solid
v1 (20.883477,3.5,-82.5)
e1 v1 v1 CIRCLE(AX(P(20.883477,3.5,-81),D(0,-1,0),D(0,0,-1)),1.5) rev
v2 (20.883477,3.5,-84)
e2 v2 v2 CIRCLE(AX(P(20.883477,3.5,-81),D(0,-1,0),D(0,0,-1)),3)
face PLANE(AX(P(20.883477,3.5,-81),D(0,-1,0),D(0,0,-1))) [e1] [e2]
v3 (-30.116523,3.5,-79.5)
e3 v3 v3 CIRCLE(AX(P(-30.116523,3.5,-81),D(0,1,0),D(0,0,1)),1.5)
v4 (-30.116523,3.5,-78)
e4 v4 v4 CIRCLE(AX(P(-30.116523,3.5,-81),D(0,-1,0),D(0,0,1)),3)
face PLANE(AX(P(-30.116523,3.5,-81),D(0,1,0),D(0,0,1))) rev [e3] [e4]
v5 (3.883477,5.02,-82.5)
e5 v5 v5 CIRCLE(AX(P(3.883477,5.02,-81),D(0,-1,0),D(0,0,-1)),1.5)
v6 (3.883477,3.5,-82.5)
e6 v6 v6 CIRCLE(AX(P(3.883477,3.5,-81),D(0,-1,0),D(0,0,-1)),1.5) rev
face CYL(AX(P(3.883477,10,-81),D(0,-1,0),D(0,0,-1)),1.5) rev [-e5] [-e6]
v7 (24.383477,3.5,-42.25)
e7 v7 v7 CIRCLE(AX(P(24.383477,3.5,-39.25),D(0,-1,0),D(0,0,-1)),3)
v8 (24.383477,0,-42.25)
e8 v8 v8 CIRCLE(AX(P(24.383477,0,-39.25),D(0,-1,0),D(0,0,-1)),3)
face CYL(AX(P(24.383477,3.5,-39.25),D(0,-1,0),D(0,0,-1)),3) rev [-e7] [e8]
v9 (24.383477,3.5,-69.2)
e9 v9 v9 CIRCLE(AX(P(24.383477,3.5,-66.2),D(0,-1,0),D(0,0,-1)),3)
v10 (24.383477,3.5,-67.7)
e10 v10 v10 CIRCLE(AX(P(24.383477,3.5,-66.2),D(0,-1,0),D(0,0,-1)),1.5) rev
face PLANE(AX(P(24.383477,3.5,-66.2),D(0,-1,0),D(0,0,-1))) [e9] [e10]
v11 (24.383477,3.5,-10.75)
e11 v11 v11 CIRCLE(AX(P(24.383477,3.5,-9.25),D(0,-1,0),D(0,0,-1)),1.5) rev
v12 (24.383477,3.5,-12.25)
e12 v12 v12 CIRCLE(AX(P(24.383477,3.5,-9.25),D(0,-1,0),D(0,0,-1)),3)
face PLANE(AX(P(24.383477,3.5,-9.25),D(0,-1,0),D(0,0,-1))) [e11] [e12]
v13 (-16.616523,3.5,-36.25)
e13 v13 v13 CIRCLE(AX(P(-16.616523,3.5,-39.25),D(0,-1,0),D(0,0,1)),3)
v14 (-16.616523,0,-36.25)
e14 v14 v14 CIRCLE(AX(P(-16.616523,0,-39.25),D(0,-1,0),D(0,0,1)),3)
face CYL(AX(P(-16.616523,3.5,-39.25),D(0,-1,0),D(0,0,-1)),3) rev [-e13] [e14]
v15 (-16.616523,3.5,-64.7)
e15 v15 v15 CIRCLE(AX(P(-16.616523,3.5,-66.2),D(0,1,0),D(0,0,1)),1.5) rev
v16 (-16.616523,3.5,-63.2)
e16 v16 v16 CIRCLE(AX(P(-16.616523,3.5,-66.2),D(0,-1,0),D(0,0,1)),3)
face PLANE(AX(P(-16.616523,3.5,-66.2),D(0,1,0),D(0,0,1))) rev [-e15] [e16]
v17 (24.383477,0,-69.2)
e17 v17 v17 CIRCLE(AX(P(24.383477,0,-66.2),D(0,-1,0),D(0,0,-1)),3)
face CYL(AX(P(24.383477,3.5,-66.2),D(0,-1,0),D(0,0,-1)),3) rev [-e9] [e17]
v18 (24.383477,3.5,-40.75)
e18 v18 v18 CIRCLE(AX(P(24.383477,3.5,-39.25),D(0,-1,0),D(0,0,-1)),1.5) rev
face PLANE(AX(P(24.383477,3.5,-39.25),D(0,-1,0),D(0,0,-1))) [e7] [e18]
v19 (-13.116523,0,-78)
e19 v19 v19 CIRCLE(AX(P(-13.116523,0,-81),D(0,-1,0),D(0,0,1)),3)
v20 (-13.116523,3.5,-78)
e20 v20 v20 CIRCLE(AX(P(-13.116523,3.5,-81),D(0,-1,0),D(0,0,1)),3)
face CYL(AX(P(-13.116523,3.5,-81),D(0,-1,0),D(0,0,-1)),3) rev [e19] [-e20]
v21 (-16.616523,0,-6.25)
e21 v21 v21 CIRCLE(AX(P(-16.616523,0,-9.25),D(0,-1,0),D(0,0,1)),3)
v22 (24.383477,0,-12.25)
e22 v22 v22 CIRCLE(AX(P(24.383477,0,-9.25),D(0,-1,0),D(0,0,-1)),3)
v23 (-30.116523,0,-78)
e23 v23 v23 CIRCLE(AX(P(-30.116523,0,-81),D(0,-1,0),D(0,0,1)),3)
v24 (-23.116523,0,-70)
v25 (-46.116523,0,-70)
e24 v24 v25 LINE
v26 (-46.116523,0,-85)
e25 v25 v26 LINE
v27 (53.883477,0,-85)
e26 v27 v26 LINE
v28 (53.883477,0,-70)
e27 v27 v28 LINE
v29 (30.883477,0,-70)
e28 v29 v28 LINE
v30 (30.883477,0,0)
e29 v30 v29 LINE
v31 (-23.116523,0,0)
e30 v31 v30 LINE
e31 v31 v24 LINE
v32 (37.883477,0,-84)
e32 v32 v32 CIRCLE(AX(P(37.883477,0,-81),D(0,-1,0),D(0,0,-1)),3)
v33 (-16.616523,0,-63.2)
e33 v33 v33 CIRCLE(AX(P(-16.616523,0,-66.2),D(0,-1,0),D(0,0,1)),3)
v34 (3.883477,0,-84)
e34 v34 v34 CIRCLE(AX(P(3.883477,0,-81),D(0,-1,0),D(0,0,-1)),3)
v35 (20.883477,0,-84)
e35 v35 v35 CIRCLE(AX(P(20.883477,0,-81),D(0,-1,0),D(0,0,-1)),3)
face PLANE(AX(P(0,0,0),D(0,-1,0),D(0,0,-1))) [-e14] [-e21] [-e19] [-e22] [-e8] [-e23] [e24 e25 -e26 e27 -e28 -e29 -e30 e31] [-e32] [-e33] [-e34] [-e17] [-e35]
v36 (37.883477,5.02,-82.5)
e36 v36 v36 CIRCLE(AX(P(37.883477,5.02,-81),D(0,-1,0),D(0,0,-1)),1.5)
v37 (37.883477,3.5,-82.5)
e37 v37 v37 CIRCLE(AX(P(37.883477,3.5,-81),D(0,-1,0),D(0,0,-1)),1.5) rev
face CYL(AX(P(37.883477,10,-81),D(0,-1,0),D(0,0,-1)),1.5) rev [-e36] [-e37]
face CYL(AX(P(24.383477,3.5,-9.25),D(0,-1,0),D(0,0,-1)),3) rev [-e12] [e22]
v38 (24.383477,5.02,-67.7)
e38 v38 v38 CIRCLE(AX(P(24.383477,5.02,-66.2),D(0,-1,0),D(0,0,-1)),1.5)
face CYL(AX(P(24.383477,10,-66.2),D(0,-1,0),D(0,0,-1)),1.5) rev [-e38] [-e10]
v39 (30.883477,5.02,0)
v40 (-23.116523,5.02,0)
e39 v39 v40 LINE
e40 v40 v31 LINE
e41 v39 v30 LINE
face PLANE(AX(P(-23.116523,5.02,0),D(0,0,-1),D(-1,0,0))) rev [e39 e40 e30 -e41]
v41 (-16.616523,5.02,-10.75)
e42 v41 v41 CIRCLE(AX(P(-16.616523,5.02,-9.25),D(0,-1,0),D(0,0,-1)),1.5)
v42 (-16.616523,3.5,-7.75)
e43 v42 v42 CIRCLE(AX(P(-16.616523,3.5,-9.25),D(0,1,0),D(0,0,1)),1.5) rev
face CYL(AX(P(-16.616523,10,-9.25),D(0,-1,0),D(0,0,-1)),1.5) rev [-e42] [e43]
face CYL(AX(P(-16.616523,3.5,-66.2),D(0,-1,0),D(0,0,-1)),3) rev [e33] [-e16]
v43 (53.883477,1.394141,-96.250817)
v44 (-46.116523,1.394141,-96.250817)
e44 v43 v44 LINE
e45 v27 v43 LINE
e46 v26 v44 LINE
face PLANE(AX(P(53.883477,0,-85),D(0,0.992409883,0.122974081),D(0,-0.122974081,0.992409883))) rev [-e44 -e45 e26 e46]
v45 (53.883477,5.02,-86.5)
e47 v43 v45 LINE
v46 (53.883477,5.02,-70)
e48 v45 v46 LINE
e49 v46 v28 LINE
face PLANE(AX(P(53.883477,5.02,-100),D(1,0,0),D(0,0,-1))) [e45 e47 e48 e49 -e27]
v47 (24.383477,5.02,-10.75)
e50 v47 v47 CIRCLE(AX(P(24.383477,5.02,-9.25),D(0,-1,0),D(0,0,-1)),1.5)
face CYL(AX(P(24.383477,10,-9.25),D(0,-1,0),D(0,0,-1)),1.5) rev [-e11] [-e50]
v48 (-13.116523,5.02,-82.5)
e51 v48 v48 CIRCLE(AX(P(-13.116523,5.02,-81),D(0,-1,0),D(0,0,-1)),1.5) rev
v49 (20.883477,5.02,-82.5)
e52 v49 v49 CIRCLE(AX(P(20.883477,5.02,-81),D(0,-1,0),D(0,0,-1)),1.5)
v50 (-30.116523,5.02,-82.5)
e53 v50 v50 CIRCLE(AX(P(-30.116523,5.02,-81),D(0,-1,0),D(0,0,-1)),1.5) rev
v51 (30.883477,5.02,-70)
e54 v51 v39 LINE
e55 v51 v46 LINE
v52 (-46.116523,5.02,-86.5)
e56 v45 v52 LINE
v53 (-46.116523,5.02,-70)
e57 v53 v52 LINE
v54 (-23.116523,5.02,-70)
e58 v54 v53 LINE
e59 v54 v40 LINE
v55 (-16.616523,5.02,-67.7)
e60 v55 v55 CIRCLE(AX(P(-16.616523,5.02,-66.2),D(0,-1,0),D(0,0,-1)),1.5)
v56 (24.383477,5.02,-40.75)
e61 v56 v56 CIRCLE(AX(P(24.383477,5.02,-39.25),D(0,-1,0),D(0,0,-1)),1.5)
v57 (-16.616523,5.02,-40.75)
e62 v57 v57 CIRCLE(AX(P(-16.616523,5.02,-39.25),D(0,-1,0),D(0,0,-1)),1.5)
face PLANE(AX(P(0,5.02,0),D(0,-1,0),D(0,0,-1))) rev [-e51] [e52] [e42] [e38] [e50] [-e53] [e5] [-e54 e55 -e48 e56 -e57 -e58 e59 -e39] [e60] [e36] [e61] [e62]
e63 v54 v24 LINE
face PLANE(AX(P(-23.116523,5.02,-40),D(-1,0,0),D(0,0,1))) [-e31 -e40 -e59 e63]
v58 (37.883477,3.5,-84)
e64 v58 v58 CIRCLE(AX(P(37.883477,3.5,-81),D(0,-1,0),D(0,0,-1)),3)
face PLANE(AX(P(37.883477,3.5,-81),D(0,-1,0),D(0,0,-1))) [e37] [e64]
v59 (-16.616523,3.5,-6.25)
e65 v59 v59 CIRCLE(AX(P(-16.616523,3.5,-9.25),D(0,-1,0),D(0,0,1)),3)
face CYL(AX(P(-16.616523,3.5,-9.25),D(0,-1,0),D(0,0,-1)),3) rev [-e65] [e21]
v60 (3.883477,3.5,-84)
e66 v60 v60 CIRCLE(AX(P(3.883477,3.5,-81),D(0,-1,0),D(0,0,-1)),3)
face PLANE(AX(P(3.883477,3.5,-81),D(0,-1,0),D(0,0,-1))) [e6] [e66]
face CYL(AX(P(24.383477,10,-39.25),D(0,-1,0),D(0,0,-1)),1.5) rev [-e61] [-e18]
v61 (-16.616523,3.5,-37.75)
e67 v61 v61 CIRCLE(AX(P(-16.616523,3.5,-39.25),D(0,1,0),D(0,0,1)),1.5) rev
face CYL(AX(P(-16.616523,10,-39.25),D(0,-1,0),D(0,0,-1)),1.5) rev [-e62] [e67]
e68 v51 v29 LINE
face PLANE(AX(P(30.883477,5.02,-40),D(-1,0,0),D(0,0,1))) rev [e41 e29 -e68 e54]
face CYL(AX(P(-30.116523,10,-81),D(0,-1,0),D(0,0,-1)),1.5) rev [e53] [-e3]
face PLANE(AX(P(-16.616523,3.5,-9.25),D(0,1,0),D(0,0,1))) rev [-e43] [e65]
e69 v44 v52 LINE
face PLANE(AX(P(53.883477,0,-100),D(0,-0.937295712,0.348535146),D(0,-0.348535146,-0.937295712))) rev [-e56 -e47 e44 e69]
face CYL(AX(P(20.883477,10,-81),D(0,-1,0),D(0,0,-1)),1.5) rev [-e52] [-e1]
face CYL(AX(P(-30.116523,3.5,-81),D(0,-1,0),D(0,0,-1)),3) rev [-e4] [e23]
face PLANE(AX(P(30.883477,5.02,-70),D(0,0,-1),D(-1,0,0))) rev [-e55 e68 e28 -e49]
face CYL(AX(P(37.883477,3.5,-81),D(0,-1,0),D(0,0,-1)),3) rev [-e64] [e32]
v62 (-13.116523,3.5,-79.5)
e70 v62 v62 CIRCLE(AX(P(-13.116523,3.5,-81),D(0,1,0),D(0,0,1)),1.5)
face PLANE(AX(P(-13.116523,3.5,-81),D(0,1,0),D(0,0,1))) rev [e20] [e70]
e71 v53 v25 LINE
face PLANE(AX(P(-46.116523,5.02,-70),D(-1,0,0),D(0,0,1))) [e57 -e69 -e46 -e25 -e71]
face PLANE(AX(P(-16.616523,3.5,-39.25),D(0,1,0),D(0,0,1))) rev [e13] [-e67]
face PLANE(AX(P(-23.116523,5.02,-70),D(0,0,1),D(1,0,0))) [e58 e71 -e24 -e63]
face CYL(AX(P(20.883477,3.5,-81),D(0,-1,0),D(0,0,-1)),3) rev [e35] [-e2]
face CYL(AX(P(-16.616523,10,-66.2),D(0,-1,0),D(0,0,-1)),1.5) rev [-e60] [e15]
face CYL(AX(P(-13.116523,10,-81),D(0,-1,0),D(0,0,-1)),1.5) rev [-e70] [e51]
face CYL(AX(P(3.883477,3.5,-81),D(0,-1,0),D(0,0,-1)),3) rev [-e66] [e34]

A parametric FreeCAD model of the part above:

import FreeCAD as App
import Part
import Sketcher
from FreeCAD import Vector
Q = App.Units.Quantity


def add_polygon(sketch, points):
    """Adds a closed chain of lines whose ends are joined by coincident constraints."""
    first, n = sketch.GeometryCount, len(points)
    for a, b in zip(points, points[1:] + points[:1]):
        sketch.addGeometry(Part.LineSegment(App.Vector(*a, 0), App.Vector(*b, 0)), False)
    for i in range(n):
        sketch.addConstraint(Sketcher.Constraint("Coincident", first + i, 2, first + (i + 1) % n, 1))

doc = App.newDocument("Part")
params = doc.addObject("Spreadsheet::Sheet", "Params")
for row, (alias, value) in enumerate([
    ("sketch1_width", "23 mm"),
    ("sketch1_width2", "54 mm"),
    ("sketch1_height", "30 mm"),
    ("sketch1_height2", "70 mm"),
    ("pad1_length", "5.02 mm"),
    ("sketch2_height", "13.5 mm"),
    ("sketch2_width", "5.02 mm"),
    ("pocket1_length", "100 mm"),
    ("sketch3_diameter", "3 mm"),
    ("pocket2_length", "10 mm"),
    ("sketch4_diameter", "6 mm"),
    ("pocket3_length", "3.5 mm"),
    ("sketch5_height", "15 mm"),
    ("sketch5_length", "4 mm"),
    ("pocket4_length", "100 mm"),
], start=1):
    params.set(f"A{row}", alias)
    params.set(f"B{row}", "=" + value)
    params.setAlias(f"B{row}", alias)

body = doc.addObject("PartDesign::Body", "Body")

# Sketch on XZ plane
sketch1 = body.newObject("Sketcher::SketchObject", "Sketch")
sketch1.AttachmentSupport = (doc.getObject("XZ_Plane"), [""])
sketch1.MapMode = "FlatFace"
add_polygon(sketch1, [(-46.116523, -100), (-46.116523, -70), (-23.116523, -70), (-23.116523, 0), (30.883477, 0), (30.883477, -70), (53.883477, -70), (53.883477, -100)])  # lines 0-7
sketch1.addConstraint(Sketcher.Constraint("Vertical", 0))
sketch1.addConstraint(Sketcher.Constraint("Horizontal", 1))
sketch1.addConstraint(Sketcher.Constraint("Vertical", 2))
sketch1.addConstraint(Sketcher.Constraint("Horizontal", 3))
sketch1.addConstraint(Sketcher.Constraint("Vertical", 4))
sketch1.addConstraint(Sketcher.Constraint("Horizontal", 5))
sketch1.addConstraint(Sketcher.Constraint("Vertical", 6))
sketch1.addConstraint(Sketcher.Constraint("Horizontal", 7))
sketch1.addConstraint(Sketcher.Constraint("PointOnObject", 2, 2, -1))
sketch1.addConstraint(Sketcher.Constraint("Horizontal", 1, 2, 4, 2))
sketch1.addConstraint(Sketcher.Constraint("Equal", 1, 5))
sketch1.addConstraint(Sketcher.Constraint("DistanceX", 1, 1, 1, 2, Q("23 mm")))
sketch1.addConstraint(Sketcher.Constraint("DistanceX", 3, 1, 3, 2, Q("54 mm")))
sketch1.addConstraint(Sketcher.Constraint("DistanceY", 0, 1, 0, 2, Q("30 mm")))
sketch1.addConstraint(Sketcher.Constraint("DistanceY", 2, 1, 2, 2, Q("70 mm")))
sketch1.addConstraint(Sketcher.Constraint("DistanceX", 0, 2, -1, 1, Q("46.116523 mm")))
sketch1.setExpression("Constraints[19]", "Params.sketch1_width")
sketch1.setExpression("Constraints[20]", "Params.sketch1_width2")
sketch1.setExpression("Constraints[21]", "Params.sketch1_height")
sketch1.setExpression("Constraints[22]", "Params.sketch1_height2")
pad1 = body.newObject("PartDesign::Pad", "Pad")
pad1.Profile = sketch1
pad1.setExpression("Length", "Params.pad1_length")
pad1.Reversed = True

# Sketch on YZ plane
sketch2 = body.newObject("Sketcher::SketchObject", "Sketch001")
sketch2.AttachmentSupport = (doc.getObject("YZ_Plane"), [""])
sketch2.MapMode = "FlatFace"
sketch2.AttachmentOffset = App.Placement(Vector(0, 0, -46.116523), App.Rotation())
add_polygon(sketch2, [(0, -100), (5.02, -86.5), (5.02, -100)])  # lines 0-2
sketch2.addConstraint(Sketcher.Constraint("Vertical", 1))
sketch2.addConstraint(Sketcher.Constraint("Horizontal", 2))
sketch2.addConstraint(Sketcher.Constraint("PointOnObject", 2, 2, -2))
sketch2.addConstraint(Sketcher.Constraint("DistanceY", 1, 2, 1, 1, Q("13.5 mm")))
sketch2.addConstraint(Sketcher.Constraint("DistanceY", 1, 2, -1, 1, Q("100 mm")))
sketch2.addConstraint(Sketcher.Constraint("DistanceX", 2, 2, 2, 1, Q("5.02 mm")))
sketch2.setExpression("Constraints[6]", "Params.sketch2_height")
sketch2.setExpression("Constraints[8]", "Params.sketch2_width")
pocket1 = body.newObject("PartDesign::Pocket", "Pocket")
pocket1.Profile = sketch2
pocket1.setExpression("Length", "Params.pocket1_length")
pocket1.Reversed = True

# Sketch on XZ plane
sketch3 = body.newObject("Sketcher::SketchObject", "Sketch002")
sketch3.AttachmentSupport = (doc.getObject("XZ_Plane"), [""])
sketch3.MapMode = "FlatFace"
sketch3.addGeometry(Part.Circle(Vector(3.883477, -81, 0), Vector(0, 0, 1), 1.5), False)
sketch3.addGeometry(Part.Circle(Vector(24.383477, -9.25, 0), Vector(0, 0, 1), 1.5), False)
sketch3.addGeometry(Part.Circle(Vector(-30.116523, -81, 0), Vector(0, 0, 1), 1.5), False)
sketch3.addGeometry(Part.Circle(Vector(-13.116523, -81, 0), Vector(0, 0, 1), 1.5), False)
sketch3.addGeometry(Part.Circle(Vector(24.383477, -66.2, 0), Vector(0, 0, 1), 1.5), False)
sketch3.addGeometry(Part.Circle(Vector(24.383477, -39.25, 0), Vector(0, 0, 1), 1.5), False)
sketch3.addGeometry(Part.Circle(Vector(-16.616523, -9.25, 0), Vector(0, 0, 1), 1.5), False)
sketch3.addGeometry(Part.Circle(Vector(-16.616523, -39.25, 0), Vector(0, 0, 1), 1.5), False)
sketch3.addGeometry(Part.Circle(Vector(-16.616523, -66.2, 0), Vector(0, 0, 1), 1.5), False)
sketch3.addGeometry(Part.Circle(Vector(20.883477, -81, 0), Vector(0, 0, 1), 1.5), False)
sketch3.addGeometry(Part.Circle(Vector(37.883477, -81, 0), Vector(0, 0, 1), 1.5), False)
sketch3.addConstraint(Sketcher.Constraint("Equal", 0, 1))
sketch3.addConstraint(Sketcher.Constraint("Equal", 1, 2))
sketch3.addConstraint(Sketcher.Constraint("Equal", 2, 3))
sketch3.addConstraint(Sketcher.Constraint("Equal", 3, 4))
sketch3.addConstraint(Sketcher.Constraint("Equal", 4, 5))
sketch3.addConstraint(Sketcher.Constraint("Equal", 5, 6))
sketch3.addConstraint(Sketcher.Constraint("Equal", 6, 7))
sketch3.addConstraint(Sketcher.Constraint("Equal", 7, 8))
sketch3.addConstraint(Sketcher.Constraint("Equal", 8, 9))
sketch3.addConstraint(Sketcher.Constraint("Equal", 9, 10))
sketch3.addConstraint(Sketcher.Constraint("Horizontal", 0, 3, 2, 3))
sketch3.addConstraint(Sketcher.Constraint("Horizontal", 2, 3, 3, 3))
sketch3.addConstraint(Sketcher.Constraint("Horizontal", 1, 3, 6, 3))
sketch3.addConstraint(Sketcher.Constraint("Horizontal", 5, 3, 7, 3))
sketch3.addConstraint(Sketcher.Constraint("Horizontal", 4, 3, 8, 3))
sketch3.addConstraint(Sketcher.Constraint("Horizontal", 3, 3, 9, 3))
sketch3.addConstraint(Sketcher.Constraint("Horizontal", 9, 3, 10, 3))
sketch3.addConstraint(Sketcher.Constraint("Vertical", 1, 3, 4, 3))
sketch3.addConstraint(Sketcher.Constraint("Vertical", 4, 3, 5, 3))
sketch3.addConstraint(Sketcher.Constraint("Vertical", 6, 3, 7, 3))
sketch3.addConstraint(Sketcher.Constraint("Vertical", 7, 3, 8, 3))
sketch3.addConstraint(Sketcher.Constraint("Diameter", 0, Q("3 mm")))
sketch3.addConstraint(Sketcher.Constraint("DistanceY", 0, 3, -1, 1, Q("81 mm")))
sketch3.addConstraint(Sketcher.Constraint("DistanceX", 2, 3, 0, 3, Q("34 mm")))
sketch3.addConstraint(Sketcher.Constraint("DistanceX", 3, 3, 0, 3, Q("17 mm")))
sketch3.addConstraint(Sketcher.Constraint("DistanceY", 5, 3, 1, 3, Q("30 mm")))
sketch3.addConstraint(Sketcher.Constraint("DistanceX", 6, 3, 1, 3, Q("41 mm")))
sketch3.addConstraint(Sketcher.Constraint("DistanceX", 0, 3, 9, 3, Q("17 mm")))
sketch3.addConstraint(Sketcher.Constraint("DistanceX", 9, 3, 10, 3, Q("17 mm")))
sketch3.addConstraint(Sketcher.Constraint("DistanceY", 4, 3, -1, 1, Q("66.2 mm")))
sketch3.addConstraint(Sketcher.Constraint("DistanceX", 0, 3, 1, 3, Q("20.5 mm")))
sketch3.addConstraint(Sketcher.Constraint("DistanceY", 1, 3, -1, 1, Q("9.25 mm")))
sketch3.addConstraint(Sketcher.Constraint("DistanceX", -1, 1, 0, 3, Q("3.883477 mm")))
sketch3.setExpression("Constraints[21]", "Params.sketch3_diameter")
pocket2 = body.newObject("PartDesign::Pocket", "Pocket001")
pocket2.Profile = sketch3
pocket2.setExpression("Length", "Params.pocket2_length")

# Sketch on XZ plane
sketch4 = body.newObject("Sketcher::SketchObject", "Sketch003")
sketch4.AttachmentSupport = (doc.getObject("XZ_Plane"), [""])
sketch4.MapMode = "FlatFace"
sketch4.addGeometry(Part.Circle(Vector(24.383477, -9.25, 0), Vector(0, 0, 1), 3), False)
sketch4.addGeometry(Part.Circle(Vector(24.383477, -39.25, 0), Vector(0, 0, 1), 3), False)
sketch4.addGeometry(Part.Circle(Vector(24.383477, -66.2, 0), Vector(0, 0, 1), 3), False)
sketch4.addGeometry(Part.Circle(Vector(-16.616523, -66.2, 0), Vector(0, 0, 1), 3), False)
sketch4.addGeometry(Part.Circle(Vector(-16.616523, -39.25, 0), Vector(0, 0, 1), 3), False)
sketch4.addGeometry(Part.Circle(Vector(-16.616523, -9.25, 0), Vector(0, 0, 1), 3), False)
sketch4.addGeometry(Part.Circle(Vector(3.883477, -81, 0), Vector(0, 0, 1), 3), False)
sketch4.addGeometry(Part.Circle(Vector(20.883477, -81, 0), Vector(0, 0, 1), 3), False)
sketch4.addGeometry(Part.Circle(Vector(37.883477, -81, 0), Vector(0, 0, 1), 3), False)
sketch4.addGeometry(Part.Circle(Vector(-30.116523, -81, 0), Vector(0, 0, 1), 3), False)
sketch4.addGeometry(Part.Circle(Vector(-13.116523, -81, 0), Vector(0, 0, 1), 3), False)
sketch4.addConstraint(Sketcher.Constraint("Equal", 0, 1))
sketch4.addConstraint(Sketcher.Constraint("Equal", 1, 2))
sketch4.addConstraint(Sketcher.Constraint("Equal", 2, 3))
sketch4.addConstraint(Sketcher.Constraint("Equal", 3, 4))
sketch4.addConstraint(Sketcher.Constraint("Equal", 4, 5))
sketch4.addConstraint(Sketcher.Constraint("Equal", 5, 6))
sketch4.addConstraint(Sketcher.Constraint("Equal", 6, 7))
sketch4.addConstraint(Sketcher.Constraint("Equal", 7, 8))
sketch4.addConstraint(Sketcher.Constraint("Equal", 8, 9))
sketch4.addConstraint(Sketcher.Constraint("Equal", 9, 10))
sketch4.addConstraint(Sketcher.Constraint("Horizontal", 2, 3, 3, 3))
sketch4.addConstraint(Sketcher.Constraint("Horizontal", 1, 3, 4, 3))
sketch4.addConstraint(Sketcher.Constraint("Horizontal", 0, 3, 5, 3))
sketch4.addConstraint(Sketcher.Constraint("Horizontal", 6, 3, 7, 3))
sketch4.addConstraint(Sketcher.Constraint("Horizontal", 7, 3, 8, 3))
sketch4.addConstraint(Sketcher.Constraint("Horizontal", 8, 3, 9, 3))
sketch4.addConstraint(Sketcher.Constraint("Horizontal", 9, 3, 10, 3))
sketch4.addConstraint(Sketcher.Constraint("Vertical", 0, 3, 1, 3))
sketch4.addConstraint(Sketcher.Constraint("Vertical", 1, 3, 2, 3))
sketch4.addConstraint(Sketcher.Constraint("Vertical", 3, 3, 4, 3))
sketch4.addConstraint(Sketcher.Constraint("Vertical", 4, 3, 5, 3))
sketch4.addConstraint(Sketcher.Constraint("Diameter", 0, Q("6 mm")))
sketch4.addConstraint(Sketcher.Constraint("DistanceY", 6, 3, -1, 1, Q("81 mm")))
sketch4.addConstraint(Sketcher.Constraint("DistanceY", 1, 3, 0, 3, Q("30 mm")))
sketch4.addConstraint(Sketcher.Constraint("DistanceX", 3, 3, 2, 3, Q("41 mm")))
sketch4.addConstraint(Sketcher.Constraint("DistanceX", 6, 3, 7, 3, Q("17 mm")))
sketch4.addConstraint(Sketcher.Constraint("DistanceX", 7, 3, 8, 3, Q("17 mm")))
sketch4.addConstraint(Sketcher.Constraint("DistanceX", 9, 3, 6, 3, Q("34 mm")))
sketch4.addConstraint(Sketcher.Constraint("DistanceX", 10, 3, 6, 3, Q("17 mm")))
sketch4.addConstraint(Sketcher.Constraint("DistanceY", 2, 3, -1, 1, Q("66.2 mm")))
sketch4.addConstraint(Sketcher.Constraint("DistanceX", 6, 3, 2, 3, Q("20.5 mm")))
sketch4.addConstraint(Sketcher.Constraint("DistanceY", 0, 3, -1, 1, Q("9.25 mm")))
sketch4.addConstraint(Sketcher.Constraint("DistanceX", -1, 1, 0, 3, Q("24.383477 mm")))
sketch4.setExpression("Constraints[21]", "Params.sketch4_diameter")
pocket3 = body.newObject("PartDesign::Pocket", "Pocket002")
pocket3.Profile = sketch4
pocket3.setExpression("Length", "Params.pocket3_length")

# Sketch on YZ plane
sketch5 = body.newObject("Sketcher::SketchObject", "Sketch004")
sketch5.AttachmentSupport = (doc.getObject("YZ_Plane"), [""])
sketch5.MapMode = "FlatFace"
sketch5.AttachmentOffset = App.Placement(Vector(0, 0, -46.116523), App.Rotation())
add_polygon(sketch5, [(0, -100), (0, -85), (1.394141, -96.250817)])  # lines 0-2
sketch5.addConstraint(Sketcher.Constraint("Vertical", 0))
sketch5.addConstraint(Sketcher.Constraint("PointOnObject", 0, 2, -2))
sketch5.addConstraint(Sketcher.Constraint("DistanceY", 0, 1, 0, 2, Q("15 mm")))
sketch5.addConstraint(Sketcher.Constraint("Distance", 2, Q("4 mm")))
sketch5.addConstraint(Sketcher.Constraint("DistanceY", 0, 2, -1, 1, Q("85 mm")))
sketch5.addConstraint(Sketcher.Constraint("DistanceX", -1, 1, 1, 2, Q("1.394141 mm")))
sketch5.setExpression("Constraints[5]", "Params.sketch5_height")
sketch5.setExpression("Constraints[6]", "Params.sketch5_length")
pocket4 = body.newObject("PartDesign::Pocket", "Pocket003")
pocket4.Profile = sketch5
pocket4.setExpression("Length", "Params.pocket4_length")
pocket4.Reversed = True

doc.recompute()
